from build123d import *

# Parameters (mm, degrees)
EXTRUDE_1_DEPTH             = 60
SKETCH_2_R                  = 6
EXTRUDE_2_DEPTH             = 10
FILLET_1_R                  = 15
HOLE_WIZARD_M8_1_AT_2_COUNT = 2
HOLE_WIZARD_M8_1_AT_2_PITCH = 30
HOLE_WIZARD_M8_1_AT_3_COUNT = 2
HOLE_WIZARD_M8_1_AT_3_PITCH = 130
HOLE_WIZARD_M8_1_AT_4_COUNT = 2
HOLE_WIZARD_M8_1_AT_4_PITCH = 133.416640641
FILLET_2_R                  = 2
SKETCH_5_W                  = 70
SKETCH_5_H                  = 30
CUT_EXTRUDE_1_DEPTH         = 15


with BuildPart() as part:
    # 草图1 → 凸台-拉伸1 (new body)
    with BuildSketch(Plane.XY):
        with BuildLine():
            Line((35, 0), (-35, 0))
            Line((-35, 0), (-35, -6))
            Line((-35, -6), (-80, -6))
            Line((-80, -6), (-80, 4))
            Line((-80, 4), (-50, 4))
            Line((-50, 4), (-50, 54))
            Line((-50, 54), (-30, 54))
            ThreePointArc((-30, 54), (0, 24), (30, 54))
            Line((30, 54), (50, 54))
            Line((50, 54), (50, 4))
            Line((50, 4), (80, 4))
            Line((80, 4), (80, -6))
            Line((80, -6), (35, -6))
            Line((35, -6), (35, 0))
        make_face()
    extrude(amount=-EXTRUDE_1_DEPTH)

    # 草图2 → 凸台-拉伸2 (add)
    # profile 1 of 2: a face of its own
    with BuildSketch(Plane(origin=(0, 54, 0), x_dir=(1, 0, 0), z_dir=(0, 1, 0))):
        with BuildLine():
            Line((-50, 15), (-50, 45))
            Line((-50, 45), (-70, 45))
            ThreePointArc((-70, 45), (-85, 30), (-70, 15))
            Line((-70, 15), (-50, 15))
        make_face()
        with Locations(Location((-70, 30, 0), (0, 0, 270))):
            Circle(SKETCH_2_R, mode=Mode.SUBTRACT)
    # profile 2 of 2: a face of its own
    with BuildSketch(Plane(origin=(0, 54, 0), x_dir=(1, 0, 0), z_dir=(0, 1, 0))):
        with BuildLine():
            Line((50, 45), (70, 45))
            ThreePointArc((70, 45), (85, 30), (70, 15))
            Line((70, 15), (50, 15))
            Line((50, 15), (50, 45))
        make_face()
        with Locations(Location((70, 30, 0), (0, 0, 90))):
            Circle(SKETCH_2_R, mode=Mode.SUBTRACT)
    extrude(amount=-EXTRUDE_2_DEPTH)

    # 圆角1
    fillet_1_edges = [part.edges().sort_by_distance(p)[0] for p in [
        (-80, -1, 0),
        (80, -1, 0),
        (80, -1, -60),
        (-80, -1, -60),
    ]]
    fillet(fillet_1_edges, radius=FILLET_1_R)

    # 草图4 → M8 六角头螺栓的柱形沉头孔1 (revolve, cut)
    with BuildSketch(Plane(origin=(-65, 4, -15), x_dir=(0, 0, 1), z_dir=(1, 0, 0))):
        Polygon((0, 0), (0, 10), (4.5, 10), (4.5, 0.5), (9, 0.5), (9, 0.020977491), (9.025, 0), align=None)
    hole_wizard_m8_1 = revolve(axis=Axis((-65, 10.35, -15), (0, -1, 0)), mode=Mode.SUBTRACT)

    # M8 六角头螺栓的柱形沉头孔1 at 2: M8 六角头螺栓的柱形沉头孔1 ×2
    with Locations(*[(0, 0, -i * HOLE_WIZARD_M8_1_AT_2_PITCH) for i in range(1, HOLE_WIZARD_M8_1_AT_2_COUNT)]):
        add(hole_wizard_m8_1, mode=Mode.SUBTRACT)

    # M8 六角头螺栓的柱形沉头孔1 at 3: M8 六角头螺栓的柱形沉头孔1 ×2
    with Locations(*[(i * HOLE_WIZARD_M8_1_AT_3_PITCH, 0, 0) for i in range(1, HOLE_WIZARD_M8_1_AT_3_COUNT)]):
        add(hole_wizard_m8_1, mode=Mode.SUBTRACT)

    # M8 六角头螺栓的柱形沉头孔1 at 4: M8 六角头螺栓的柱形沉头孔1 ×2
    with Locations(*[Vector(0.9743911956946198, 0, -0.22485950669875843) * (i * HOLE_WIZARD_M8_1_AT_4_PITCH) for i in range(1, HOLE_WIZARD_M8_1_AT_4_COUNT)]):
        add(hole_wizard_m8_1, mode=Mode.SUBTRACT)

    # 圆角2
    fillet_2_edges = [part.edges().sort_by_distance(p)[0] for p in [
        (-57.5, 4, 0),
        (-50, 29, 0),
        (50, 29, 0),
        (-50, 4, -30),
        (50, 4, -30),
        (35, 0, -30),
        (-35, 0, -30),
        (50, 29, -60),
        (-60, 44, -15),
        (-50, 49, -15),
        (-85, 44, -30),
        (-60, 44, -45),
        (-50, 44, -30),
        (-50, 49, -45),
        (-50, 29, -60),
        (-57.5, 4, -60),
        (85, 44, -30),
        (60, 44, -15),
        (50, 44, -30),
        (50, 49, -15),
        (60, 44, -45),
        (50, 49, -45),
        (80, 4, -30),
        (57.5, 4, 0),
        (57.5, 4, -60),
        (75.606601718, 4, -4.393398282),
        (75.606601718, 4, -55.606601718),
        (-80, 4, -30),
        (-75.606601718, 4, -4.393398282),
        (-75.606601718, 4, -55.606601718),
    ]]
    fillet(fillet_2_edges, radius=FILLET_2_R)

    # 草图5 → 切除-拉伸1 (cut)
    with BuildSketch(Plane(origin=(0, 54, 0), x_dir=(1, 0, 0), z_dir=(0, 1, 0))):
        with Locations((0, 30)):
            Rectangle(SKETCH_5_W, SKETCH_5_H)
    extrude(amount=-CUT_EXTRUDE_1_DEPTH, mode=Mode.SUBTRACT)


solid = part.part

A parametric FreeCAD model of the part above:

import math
import FreeCAD as App
import Part
import Sketcher
Q = App.Units.Quantity


def edges_at(feature, points):
    """Names of the edges that pass closest to the given points."""
    edges = feature.Shape.Edges
    near = lambda p: min(range(len(edges)), key=lambda i: edges[i].distToShape(Part.Vertex(*p))[0])
    return sorted({f"Edge{near(p) + 1}" for p in points})

doc = App.newDocument("Part")
body = doc.addObject("PartDesign::Body", "Body")

# Sketch on XY plane
sketch1 = body.newObject("Sketcher::SketchObject", "Sketch")
sketch1.AttachmentSupport = (doc.getObject("XY_Plane"), [""])
sketch1.MapMode = "FlatFace"
sketch1.addGeometry([
    Part.LineSegment(App.Vector(-35, 0, 0), App.Vector(35, 0, 0)),  # 0
    Part.LineSegment(App.Vector(35, 0, 0), App.Vector(35, -6, 0)),  # 1
    Part.LineSegment(App.Vector(35, -6, 0), App.Vector(80, -6, 0)),  # 2
    Part.LineSegment(App.Vector(80, -6, 0), App.Vector(80, 4, 0)),  # 3
    Part.LineSegment(App.Vector(80, 4, 0), App.Vector(50, 4, 0)),  # 4
    Part.LineSegment(App.Vector(50, 4, 0), App.Vector(50, 54, 0)),  # 5
    Part.LineSegment(App.Vector(50, 54, 0), App.Vector(30, 54, 0)),  # 6
    Part.ArcOfCircle(Part.Circle(App.Vector(0, 54, 0), App.Vector(0, 0, 1), 30), math.radians(180), math.radians(360)),  # 7
    Part.LineSegment(App.Vector(-30, 54, 0), App.Vector(-50, 54, 0)),  # 8
    Part.LineSegment(App.Vector(-50, 54, 0), App.Vector(-50, 4, 0)),  # 9
    Part.LineSegment(App.Vector(-50, 4, 0), App.Vector(-80, 4, 0)),  # 10
    Part.LineSegment(App.Vector(-80, 4, 0), App.Vector(-80, -6, 0)),  # 11
    Part.LineSegment(App.Vector(-80, -6, 0), App.Vector(-35, -6, 0)),  # 12
    Part.LineSegment(App.Vector(-35, -6, 0), App.Vector(-35, 0, 0)),  # 13
], False)
sketch1.addConstraint([
    Sketcher.Constraint("Coincident", 0, 2, 1, 1),
    Sketcher.Constraint("Coincident", 1, 2, 2, 1),
    Sketcher.Constraint("Coincident", 2, 2, 3, 1),
    Sketcher.Constraint("Coincident", 3, 2, 4, 1),
    Sketcher.Constraint("Coincident", 4, 2, 5, 1),
    Sketcher.Constraint("Coincident", 5, 2, 6, 1),
    Sketcher.Constraint("Coincident", 6, 2, 7, 2),
    Sketcher.Constraint("Coincident", 7, 1, 8, 1),
    Sketcher.Constraint("Coincident", 8, 2, 9, 1),
    Sketcher.Constraint("Coincident", 9, 2, 10, 1),
    Sketcher.Constraint("Coincident", 10, 2, 11, 1),
    Sketcher.Constraint("Coincident", 11, 2, 12, 1),
    Sketcher.Constraint("Coincident", 12, 2, 13, 1),
    Sketcher.Constraint("Coincident", 13, 2, 0, 1),
    Sketcher.Constraint("Horizontal", 0),
    Sketcher.Constraint("Vertical", 1),
    Sketcher.Constraint("Horizontal", 2),
    Sketcher.Constraint("Vertical", 3),
    Sketcher.Constraint("Horizontal", 4),
    Sketcher.Constraint("Vertical", 5),
    Sketcher.Constraint("Horizontal", 6),
    Sketcher.Constraint("Horizontal", 8),
    Sketcher.Constraint("Vertical", 9),
    Sketcher.Constraint("Horizontal", 10),
    Sketcher.Constraint("Vertical", 11),
    Sketcher.Constraint("Horizontal", 12),
    Sketcher.Constraint("Vertical", 13),
    Sketcher.Constraint("Symmetric", 0, 2, 13, 2, -1, 1),
    Sketcher.Constraint("Symmetric", 6, 2, 7, 1, -2),
    Sketcher.Constraint("Symmetric", 4, 2, 9, 2, -2),
    Sketcher.Constraint("Symmetric", 2, 2, 11, 2, -2),
    Sketcher.Constraint("Horizontal", 7, 3, 5, 2),
    Sketcher.Constraint("Radius", 7, Q("30 mm")),
    Sketcher.Constraint("DistanceX", 0, 1, 0, 2, Q("70 mm")),
    Sketcher.Constraint("DistanceX", 2, 1, 2, 2, Q("45 mm")),
    Sketcher.Constraint("DistanceX", 4, 2, 4, 1, Q("30 mm")),
    Sketcher.Constraint("DistanceY", 1, 2, 1, 1, Q("6 mm")),
    Sketcher.Constraint("DistanceY", 3, 1, 3, 2, Q("10 mm")),
    Sketcher.Constraint("DistanceY", 5, 1, 5, 2, Q("50 mm")),
])
pad1 = body.newObject("PartDesign::Pad", "Pad")
pad1.Profile = sketch1
pad1.Length = 60
pad1.Reversed = True

# Sketch on XZ plane
sketch2 = body.newObject("Sketcher::SketchObject", "Sketch001")
sketch2.AttachmentSupport = (doc.getObject("XZ_Plane"), [""])
sketch2.MapMode = "FlatFace"
sketch2.AttachmentOffset = App.Placement(App.Vector(0, 0, -54), App.Rotation())
sketch2.addGeometry([
    Part.LineSegment(App.Vector(-50, -15, 0), App.Vector(-50, -45, 0)),  # 0
    Part.LineSegment(App.Vector(-50, -45, 0), App.Vector(-70, -45, 0)),  # 1
    Part.ArcOfCircle(Part.Circle(App.Vector(-70, -30, 0), App.Vector(0, 0, 1), 15), math.radians(90), math.radians(270)),  # 2
    Part.LineSegment(App.Vector(-70, -15, 0), App.Vector(-50, -15, 0)),  # 3
    Part.Circle(App.Vector(-70, -30, 0), App.Vector(0, 0, 1), 6),  # 4
    Part.LineSegment(App.Vector(70, -45, 0), App.Vector(50, -45, 0)),  # 5
    Part.LineSegment(App.Vector(50, -45, 0), App.Vector(50, -15, 0)),  # 6
    Part.LineSegment(App.Vector(50, -15, 0), App.Vector(70, -15, 0)),  # 7
    Part.ArcOfCircle(Part.Circle(App.Vector(70, -30, 0), App.Vector(0, 0, 1), 15), math.radians(-90), math.radians(90)),  # 8
    Part.Circle(App.Vector(70, -30, 0), App.Vector(0, 0, 1), 6),  # 9
], False)
sketch2.addConstraint([
    Sketcher.Constraint("Coincident", 0, 2, 1, 1),
    Sketcher.Constraint("Tangent", 1, 2, 2, 2),
    Sketcher.Constraint("Tangent", 2, 1, 3, 1),
    Sketcher.Constraint("Coincident", 3, 2, 0, 1),
    Sketcher.Constraint("Coincident", 5, 2, 6, 1),
    Sketcher.Constraint("Coincident", 6, 2, 7, 1),
    Sketcher.Constraint("Tangent", 7, 2, 8, 2),
    Sketcher.Constraint("Tangent", 8, 1, 5, 1),
    Sketcher.Constraint("Vertical", 0),
    Sketcher.Constraint("Horizontal", 1),
    Sketcher.Constraint("Horizontal", 3),
    Sketcher.Constraint("Horizontal", 5),
    Sketcher.Constraint("Vertical", 6),
    Sketcher.Constraint("Horizontal", 7),
    Sketcher.Constraint("Coincident", 4, 3, 2, 3),
    Sketcher.Constraint("Coincident", 9, 3, 8, 3),
    Sketcher.Constraint("Equal", 2, 8),
    Sketcher.Constraint("Equal", 4, 9),
    Sketcher.Constraint("Symmetric", 2, 3, 8, 3, -2),
    Sketcher.Constraint("Equal", 3, 5),
    Sketcher.Constraint("Diameter", 4, Q("12 mm")),
    Sketcher.Constraint("Radius", 2, Q("15 mm")),
    Sketcher.Constraint("DistanceX", 1, 2, 1, 1, Q("20 mm")),
    Sketcher.Constraint("DistanceX", 2, 3, -1, 1, Q("70 mm")),
    Sketcher.Constraint("DistanceY", 2, 3, -1, 1, Q("30 mm")),
])
pad2 = body.newObject("PartDesign::Pad", "Pad001")
pad2.Profile = sketch2
pad2.Length = 10
doc.recompute()

fillet = body.newObject("PartDesign::Fillet", "Fillet")
fillet.Base = (pad2, edges_at(pad2, [
    (-80, -1, 0),
    (80, -1, 0),
    (80, -1, -60),
    (-80, -1, -60),
]))
fillet.Radius = 15

# Sketch on YZ plane
sketch3 = body.newObject("Sketcher::SketchObject", "Sketch002")
sketch3.AttachmentSupport = (doc.getObject("YZ_Plane"), [""])
sketch3.MapMode = "FlatFace"
sketch3.AttachmentOffset = App.Placement(App.Vector(0, 0, -65), App.Rotation())
sketch3.addGeometry([
    Part.LineSegment(App.Vector(-6, -15, 0), App.Vector(4, -15, 0)),  # 0
    Part.LineSegment(App.Vector(4, -15, 0), App.Vector(4, -5.975, 0)),  # 1
    Part.LineSegment(App.Vector(4, -5.975, 0), App.Vector(3.979, -6, 0)),  # 2
    Part.LineSegment(App.Vector(3.979, -6, 0), App.Vector(3.5, -6, 0)),  # 3
    Part.LineSegment(App.Vector(3.5, -6, 0), App.Vector(3.5, -10.5, 0)),  # 4
    Part.LineSegment(App.Vector(3.5, -10.5, 0), App.Vector(-6, -10.5, 0)),  # 5
    Part.LineSegment(App.Vector(-6, -10.5, 0), App.Vector(-6, -15, 0)),  # 6
], False)
sketch3.addGeometry(Part.LineSegment(App.Vector(4, -15, 0), App.Vector(-6, -15, 0)), True)  # axis
sketch3.addConstraint([
    Sketcher.Constraint("Coincident", 0, 2, 1, 1),
    Sketcher.Constraint("Coincident", 1, 2, 2, 1),
    Sketcher.Constraint("Coincident", 2, 2, 3, 1),
    Sketcher.Constraint("Coincident", 3, 2, 4, 1),
    Sketcher.Constraint("Coincident", 4, 2, 5, 1),
    Sketcher.Constraint("Coincident", 5, 2, 6, 1),
    Sketcher.Constraint("Coincident", 6, 2, 0, 1),
    Sketcher.Constraint("Horizontal", 0),
    Sketcher.Constraint("Vertical", 1),
    Sketcher.Constraint("Horizontal", 3),
    Sketcher.Constraint("Vertical", 4),
    Sketcher.Constraint("Horizontal", 5),
    Sketcher.Constraint("Vertical", 6),
    Sketcher.Constraint("Horizontal", 7),
    Sketcher.Constraint("Coincident", 7, 1, 0, 2),
    Sketcher.Constraint("Vertical", 5, 2, 7, 2),
    Sketcher.Constraint("Equal", 4, 6),
    Sketcher.Constraint("DistanceX", 0, 1, 0, 2, Q("10 mm")),
    Sketcher.Constraint("Angle", 2, Q("-130 deg")),
    Sketcher.Constraint("DistanceX", 5, 2, 5, 1, Q("9.5 mm")),
    Sketcher.Constraint("DistanceY", 4, 2, 4, 1, Q("4.5 mm")),
    Sketcher.Constraint("DistanceX", -1, 1, 0, 2, Q("4 mm")),
    Sketcher.Constraint("DistanceY", 0, 2, -1, 1, Q("15 mm")),
    Sketcher.Constraint("DistanceY", 1, 1, 1, 2, Q("9.025 mm")),
])
groove = body.newObject("PartDesign::Groove", "Groove")
groove.Profile = sketch3
groove.ReferenceAxis = (sketch3, ["Axis0"])
groove.Angle = 360
doc.recompute()

linearpattern = body.newObject("PartDesign::LinearPattern", "LinearPattern")
linearpattern.Originals = [groove]
linearpattern.Direction = (doc.getObject("Z_Axis"), [""])
linearpattern.Mode = "offset"
linearpattern.Offset = 30
linearpattern.Occurrences = 2
linearpattern.Reversed = True
body.Tip = linearpattern
doc.recompute()

linearpattern2 = body.newObject("PartDesign::LinearPattern", "LinearPattern001")
linearpattern2.Originals = [groove]
linearpattern2.Direction = (doc.getObject("X_Axis"), [""])
linearpattern2.Mode = "offset"
linearpattern2.Offset = 130
linearpattern2.Occurrences = 2
body.Tip = linearpattern2
doc.recompute()

datumline = body.newObject("PartDesign::Line", "DatumLine")
datumline.Placement = App.Placement(App.Vector(0, 0, 0), App.Rotation(App.Vector(0, 0, 1), App.Vector(0.974391196, 0, -0.224859507)))
linearpattern3 = body.newObject("PartDesign::LinearPattern", "LinearPattern002")
linearpattern3.Originals = [groove]
linearpattern3.Direction = (datumline, [""])
linearpattern3.Mode = "offset"
linearpattern3.Offset = 133.416641
linearpattern3.Occurrences = 2
body.Tip = linearpattern3
doc.recompute()

fillet2 = body.newObject("PartDesign::Fillet", "Fillet001")
fillet2.Base = (linearpattern3, edges_at(linearpattern3, [
    (-57.5, 4, 0),
    (-50, 29, 0),
    (50, 29, 0),
    (-50, 4, -30),
    (50, 4, -30),
    (35, 0, -30),
    (-35, 0, -30),
    (50, 29, -60),
    (-60, 44, -15),
    (-50, 49, -15),
    (-85, 44, -30),
    (-60, 44, -45),
    (-50, 44, -30),
    (-50, 49, -45),
    (-50, 29, -60),
    (-57.5, 4, -60),
    (85, 44, -30),
    (60, 44, -15),
    (50, 44, -30),
    (50, 49, -15),
    (60, 44, -45),
    (50, 49, -45),
    (80, 4, -30),
    (57.5, 4, 0),
    (57.5, 4, -60),
    (75.607, 4, -4.393),
    (75.607, 4, -55.607),
    (-80, 4, -30),
    (-75.607, 4, -4.393),
    (-75.607, 4, -55.607),
]))
fillet2.Radius = 2

# Sketch on XZ plane
sketch4 = body.newObject("Sketcher::SketchObject", "Sketch003")
sketch4.AttachmentSupport = (doc.getObject("XZ_Plane"), [""])
sketch4.MapMode = "FlatFace"
sketch4.AttachmentOffset = App.Placement(App.Vector(0, 0, -54), App.Rotation())
sketch4.addGeometry([
    Part.LineSegment(App.Vector(-35, -45, 0), App.Vector(-35, -15, 0)),
    Part.LineSegment(App.Vector(-35, -15, 0), App.Vector(35, -15, 0)),
    Part.LineSegment(App.Vector(35, -15, 0), App.Vector(35, -45, 0)),
    Part.LineSegment(App.Vector(35, -45, 0), App.Vector(-35, -45, 0)),
], False)
sketch4.addConstraint([
    Sketcher.Constraint("Coincident", 0, 2, 1, 1),
    Sketcher.Constraint("Coincident", 1, 2, 2, 1),
    Sketcher.Constraint("Coincident", 2, 2, 3, 1),
    Sketcher.Constraint("Coincident", 3, 2, 0, 1),
    Sketcher.Constraint("Vertical", 0),
    Sketcher.Constraint("Horizontal", 1),
    Sketcher.Constraint("Vertical", 2),
    Sketcher.Constraint("Horizontal", 3),
    Sketcher.Constraint("DistanceX", 1, 1, 1, 2, Q("70 mm")),
    Sketcher.Constraint("DistanceY", 0, 1, 0, 2, Q("30 mm")),
    Sketcher.Constraint("DistanceX", 0, 2, -1, 1, Q("35 mm")),
    Sketcher.Constraint("DistanceY", 0, 2, -1, 1, Q("15 mm")),
])
pocket1 = body.newObject("PartDesign::Pocket", "Pocket")
pocket1.Profile = sketch4
pocket1.Length = 15
pocket1.Reversed = True

doc.recompute()
